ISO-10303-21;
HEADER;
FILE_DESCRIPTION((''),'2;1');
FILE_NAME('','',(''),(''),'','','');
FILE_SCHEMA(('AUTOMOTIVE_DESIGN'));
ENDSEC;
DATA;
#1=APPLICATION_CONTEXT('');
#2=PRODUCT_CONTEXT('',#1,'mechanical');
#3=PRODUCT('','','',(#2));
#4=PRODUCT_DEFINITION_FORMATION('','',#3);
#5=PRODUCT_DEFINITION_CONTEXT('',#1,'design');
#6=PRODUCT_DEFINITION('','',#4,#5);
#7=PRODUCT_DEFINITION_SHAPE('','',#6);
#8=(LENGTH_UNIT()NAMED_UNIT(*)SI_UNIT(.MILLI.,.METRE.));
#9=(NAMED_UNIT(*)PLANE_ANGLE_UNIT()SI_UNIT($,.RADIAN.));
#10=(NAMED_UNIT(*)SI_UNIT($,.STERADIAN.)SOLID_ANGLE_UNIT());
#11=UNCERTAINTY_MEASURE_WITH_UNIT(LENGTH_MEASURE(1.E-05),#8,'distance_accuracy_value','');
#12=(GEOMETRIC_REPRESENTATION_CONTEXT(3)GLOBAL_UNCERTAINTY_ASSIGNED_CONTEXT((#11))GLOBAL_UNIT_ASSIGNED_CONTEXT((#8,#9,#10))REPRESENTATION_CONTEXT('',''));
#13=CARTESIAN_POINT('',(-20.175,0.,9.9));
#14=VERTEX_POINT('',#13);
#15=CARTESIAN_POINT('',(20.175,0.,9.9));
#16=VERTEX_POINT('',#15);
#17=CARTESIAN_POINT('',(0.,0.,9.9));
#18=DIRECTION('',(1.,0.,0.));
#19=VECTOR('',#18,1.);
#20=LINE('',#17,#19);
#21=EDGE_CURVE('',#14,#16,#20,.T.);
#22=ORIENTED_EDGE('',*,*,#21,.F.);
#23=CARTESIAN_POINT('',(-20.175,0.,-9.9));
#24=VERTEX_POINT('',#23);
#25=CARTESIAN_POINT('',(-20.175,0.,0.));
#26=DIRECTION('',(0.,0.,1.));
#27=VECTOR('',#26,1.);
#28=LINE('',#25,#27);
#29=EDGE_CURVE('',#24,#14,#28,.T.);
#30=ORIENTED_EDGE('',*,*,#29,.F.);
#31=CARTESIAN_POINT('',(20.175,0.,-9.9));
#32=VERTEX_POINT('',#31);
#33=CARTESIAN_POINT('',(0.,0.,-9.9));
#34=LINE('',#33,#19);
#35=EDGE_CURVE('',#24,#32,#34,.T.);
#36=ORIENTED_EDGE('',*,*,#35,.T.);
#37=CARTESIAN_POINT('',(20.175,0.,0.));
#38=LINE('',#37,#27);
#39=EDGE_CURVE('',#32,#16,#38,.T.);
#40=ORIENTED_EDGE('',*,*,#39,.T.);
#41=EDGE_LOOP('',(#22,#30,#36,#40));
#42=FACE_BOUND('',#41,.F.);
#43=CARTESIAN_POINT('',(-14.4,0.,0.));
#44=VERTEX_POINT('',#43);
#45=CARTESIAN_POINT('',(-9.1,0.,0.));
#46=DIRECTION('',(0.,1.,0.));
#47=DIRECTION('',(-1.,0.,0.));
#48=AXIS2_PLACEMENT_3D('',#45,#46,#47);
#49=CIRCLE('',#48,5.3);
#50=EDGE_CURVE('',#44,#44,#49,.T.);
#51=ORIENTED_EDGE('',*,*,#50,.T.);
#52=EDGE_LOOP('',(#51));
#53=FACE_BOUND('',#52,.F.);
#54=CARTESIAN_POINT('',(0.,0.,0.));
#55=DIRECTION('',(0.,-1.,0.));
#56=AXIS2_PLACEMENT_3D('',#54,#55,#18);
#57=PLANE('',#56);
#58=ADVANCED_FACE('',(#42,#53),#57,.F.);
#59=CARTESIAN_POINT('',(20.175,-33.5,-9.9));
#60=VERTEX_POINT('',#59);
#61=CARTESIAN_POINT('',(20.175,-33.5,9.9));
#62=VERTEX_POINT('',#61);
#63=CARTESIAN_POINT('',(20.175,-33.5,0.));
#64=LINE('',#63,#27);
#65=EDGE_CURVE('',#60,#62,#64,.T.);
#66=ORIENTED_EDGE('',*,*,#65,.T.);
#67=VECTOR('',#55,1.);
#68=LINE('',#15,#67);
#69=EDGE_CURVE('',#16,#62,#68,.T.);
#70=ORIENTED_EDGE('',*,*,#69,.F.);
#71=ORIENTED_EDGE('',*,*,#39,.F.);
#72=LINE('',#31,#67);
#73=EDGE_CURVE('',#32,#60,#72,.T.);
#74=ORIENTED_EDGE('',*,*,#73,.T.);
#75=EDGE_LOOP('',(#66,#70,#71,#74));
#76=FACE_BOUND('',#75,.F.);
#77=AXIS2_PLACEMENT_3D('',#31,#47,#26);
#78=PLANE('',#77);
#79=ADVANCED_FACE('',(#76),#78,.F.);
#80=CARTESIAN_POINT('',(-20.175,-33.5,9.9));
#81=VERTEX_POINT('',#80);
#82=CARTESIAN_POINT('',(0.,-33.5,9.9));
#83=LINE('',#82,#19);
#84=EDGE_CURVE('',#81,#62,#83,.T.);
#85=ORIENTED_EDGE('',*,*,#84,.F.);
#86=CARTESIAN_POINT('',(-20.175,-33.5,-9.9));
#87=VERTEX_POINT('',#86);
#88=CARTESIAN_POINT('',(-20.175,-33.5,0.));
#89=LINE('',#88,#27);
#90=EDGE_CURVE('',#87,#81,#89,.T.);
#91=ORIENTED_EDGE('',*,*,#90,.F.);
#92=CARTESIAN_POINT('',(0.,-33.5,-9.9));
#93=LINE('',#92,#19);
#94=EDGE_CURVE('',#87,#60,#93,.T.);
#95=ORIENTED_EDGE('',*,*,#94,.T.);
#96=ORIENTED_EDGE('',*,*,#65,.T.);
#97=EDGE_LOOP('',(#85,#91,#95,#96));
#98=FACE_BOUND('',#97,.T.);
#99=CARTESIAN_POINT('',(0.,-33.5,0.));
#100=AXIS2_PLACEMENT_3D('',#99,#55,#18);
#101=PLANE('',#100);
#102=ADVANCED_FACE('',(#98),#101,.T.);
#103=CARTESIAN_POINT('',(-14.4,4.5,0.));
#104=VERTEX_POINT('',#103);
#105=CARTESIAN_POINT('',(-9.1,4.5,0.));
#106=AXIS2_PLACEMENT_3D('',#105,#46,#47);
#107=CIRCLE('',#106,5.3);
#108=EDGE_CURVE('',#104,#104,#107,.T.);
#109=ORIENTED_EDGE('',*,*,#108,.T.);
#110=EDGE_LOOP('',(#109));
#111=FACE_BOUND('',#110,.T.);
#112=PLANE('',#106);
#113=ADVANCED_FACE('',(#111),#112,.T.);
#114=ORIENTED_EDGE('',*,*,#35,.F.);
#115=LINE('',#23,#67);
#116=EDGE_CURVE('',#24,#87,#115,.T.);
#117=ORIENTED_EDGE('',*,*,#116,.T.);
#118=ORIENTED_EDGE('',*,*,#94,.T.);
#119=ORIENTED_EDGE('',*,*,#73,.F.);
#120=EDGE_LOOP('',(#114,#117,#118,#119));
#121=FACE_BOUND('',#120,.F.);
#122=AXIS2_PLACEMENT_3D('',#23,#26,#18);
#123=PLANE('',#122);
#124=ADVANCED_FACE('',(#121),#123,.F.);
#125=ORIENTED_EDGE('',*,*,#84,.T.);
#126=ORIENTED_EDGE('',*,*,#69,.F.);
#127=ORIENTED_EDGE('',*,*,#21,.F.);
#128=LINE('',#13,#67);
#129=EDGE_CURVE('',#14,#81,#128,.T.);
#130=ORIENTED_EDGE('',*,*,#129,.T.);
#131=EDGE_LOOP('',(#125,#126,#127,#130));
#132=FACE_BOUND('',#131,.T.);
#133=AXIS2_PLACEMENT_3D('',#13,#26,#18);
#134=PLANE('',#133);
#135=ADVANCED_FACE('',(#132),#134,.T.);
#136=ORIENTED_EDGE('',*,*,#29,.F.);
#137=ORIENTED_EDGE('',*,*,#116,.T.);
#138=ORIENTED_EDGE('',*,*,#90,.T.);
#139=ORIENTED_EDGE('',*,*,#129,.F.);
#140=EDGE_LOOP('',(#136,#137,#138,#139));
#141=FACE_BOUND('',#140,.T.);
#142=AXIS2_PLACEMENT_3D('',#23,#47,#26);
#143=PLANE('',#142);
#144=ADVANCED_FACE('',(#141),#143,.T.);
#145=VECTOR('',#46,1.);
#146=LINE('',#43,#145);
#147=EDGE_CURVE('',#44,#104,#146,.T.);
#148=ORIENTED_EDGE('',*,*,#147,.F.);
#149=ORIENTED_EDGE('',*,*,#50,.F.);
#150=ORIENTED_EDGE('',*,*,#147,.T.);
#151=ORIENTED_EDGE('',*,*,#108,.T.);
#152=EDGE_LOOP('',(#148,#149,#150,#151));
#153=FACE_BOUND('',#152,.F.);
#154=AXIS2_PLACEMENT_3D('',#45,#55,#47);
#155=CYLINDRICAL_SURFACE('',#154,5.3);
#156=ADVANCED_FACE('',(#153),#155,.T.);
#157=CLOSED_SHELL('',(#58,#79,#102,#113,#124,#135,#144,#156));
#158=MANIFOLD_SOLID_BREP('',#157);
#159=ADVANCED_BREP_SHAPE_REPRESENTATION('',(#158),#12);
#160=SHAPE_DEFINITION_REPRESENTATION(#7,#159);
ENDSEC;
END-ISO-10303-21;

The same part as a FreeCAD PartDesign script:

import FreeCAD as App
import Part
import Sketcher
from FreeCAD import Vector


def add_polygon(sketch, points):
    """Adds a closed chain of lines whose ends are joined by coincident constraints."""
    first, n = sketch.GeometryCount, len(points)
    for a, b in zip(points, points[1:] + points[:1]):
        sketch.addGeometry(Part.LineSegment(App.Vector(*a, 0), App.Vector(*b, 0)), False)
    for i in range(n):
        sketch.addConstraint(Sketcher.Constraint("Coincident", first + i, 2, first + (i + 1) % n, 1))

doc = App.newDocument("Part")
body = doc.addObject("PartDesign::Body", "Body")

sketch1 = body.newObject("Sketcher::SketchObject", "Sketch")
sketch1.AttachmentSupport = (doc.getObject("XZ_Plane"), [""])
sketch1.MapMode = "FlatFace"
add_polygon(sketch1, [(-20, 10), (-20, -10), (20, -10), (20, 10)])
sketch1.addConstraint(Sketcher.Constraint("Vertical", 0))
sketch1.addConstraint(Sketcher.Constraint("Horizontal", 1))
sketch1.addConstraint(Sketcher.Constraint("Vertical", 2))
sketch1.addConstraint(Sketcher.Constraint("Horizontal", 3))
sketch1.addConstraint(Sketcher.Constraint("Symmetric", 0, 2, 2, 2, -1, 1))
sketch1.addConstraint(Sketcher.Constraint("DistanceY", 0, 2, 0, 1, 19.8))
sketch1.addConstraint(Sketcher.Constraint("DistanceX", 1, 1, 1, 2, 40.35))
pad1 = body.newObject("PartDesign::Pad", "Pad")
pad1.Profile = sketch1
pad1.Length = 33.5

sketch2 = body.newObject("Sketcher::SketchObject", "Sketch001")
sketch2.AttachmentSupport = (doc.getObject("XZ_Plane"), [""])
sketch2.MapMode = "FlatFace"
sketch2.addGeometry(Part.Circle(Vector(-9, 0, 0), Vector(0, 0, 1), 5), False)
sketch2.addConstraint(Sketcher.Constraint("PointOnObject", 0, 3, -1))
sketch2.addConstraint(Sketcher.Constraint("Diameter", 0, 10.6))
sketch2.addConstraint(Sketcher.Constraint("DistanceX", 0, 3, -1, 1, 9.1))
pad2 = body.newObject("PartDesign::Pad", "Pad001")
pad2.Profile = sketch2
pad2.Length = 4.5
pad2.Reversed = True

doc.recompute()
